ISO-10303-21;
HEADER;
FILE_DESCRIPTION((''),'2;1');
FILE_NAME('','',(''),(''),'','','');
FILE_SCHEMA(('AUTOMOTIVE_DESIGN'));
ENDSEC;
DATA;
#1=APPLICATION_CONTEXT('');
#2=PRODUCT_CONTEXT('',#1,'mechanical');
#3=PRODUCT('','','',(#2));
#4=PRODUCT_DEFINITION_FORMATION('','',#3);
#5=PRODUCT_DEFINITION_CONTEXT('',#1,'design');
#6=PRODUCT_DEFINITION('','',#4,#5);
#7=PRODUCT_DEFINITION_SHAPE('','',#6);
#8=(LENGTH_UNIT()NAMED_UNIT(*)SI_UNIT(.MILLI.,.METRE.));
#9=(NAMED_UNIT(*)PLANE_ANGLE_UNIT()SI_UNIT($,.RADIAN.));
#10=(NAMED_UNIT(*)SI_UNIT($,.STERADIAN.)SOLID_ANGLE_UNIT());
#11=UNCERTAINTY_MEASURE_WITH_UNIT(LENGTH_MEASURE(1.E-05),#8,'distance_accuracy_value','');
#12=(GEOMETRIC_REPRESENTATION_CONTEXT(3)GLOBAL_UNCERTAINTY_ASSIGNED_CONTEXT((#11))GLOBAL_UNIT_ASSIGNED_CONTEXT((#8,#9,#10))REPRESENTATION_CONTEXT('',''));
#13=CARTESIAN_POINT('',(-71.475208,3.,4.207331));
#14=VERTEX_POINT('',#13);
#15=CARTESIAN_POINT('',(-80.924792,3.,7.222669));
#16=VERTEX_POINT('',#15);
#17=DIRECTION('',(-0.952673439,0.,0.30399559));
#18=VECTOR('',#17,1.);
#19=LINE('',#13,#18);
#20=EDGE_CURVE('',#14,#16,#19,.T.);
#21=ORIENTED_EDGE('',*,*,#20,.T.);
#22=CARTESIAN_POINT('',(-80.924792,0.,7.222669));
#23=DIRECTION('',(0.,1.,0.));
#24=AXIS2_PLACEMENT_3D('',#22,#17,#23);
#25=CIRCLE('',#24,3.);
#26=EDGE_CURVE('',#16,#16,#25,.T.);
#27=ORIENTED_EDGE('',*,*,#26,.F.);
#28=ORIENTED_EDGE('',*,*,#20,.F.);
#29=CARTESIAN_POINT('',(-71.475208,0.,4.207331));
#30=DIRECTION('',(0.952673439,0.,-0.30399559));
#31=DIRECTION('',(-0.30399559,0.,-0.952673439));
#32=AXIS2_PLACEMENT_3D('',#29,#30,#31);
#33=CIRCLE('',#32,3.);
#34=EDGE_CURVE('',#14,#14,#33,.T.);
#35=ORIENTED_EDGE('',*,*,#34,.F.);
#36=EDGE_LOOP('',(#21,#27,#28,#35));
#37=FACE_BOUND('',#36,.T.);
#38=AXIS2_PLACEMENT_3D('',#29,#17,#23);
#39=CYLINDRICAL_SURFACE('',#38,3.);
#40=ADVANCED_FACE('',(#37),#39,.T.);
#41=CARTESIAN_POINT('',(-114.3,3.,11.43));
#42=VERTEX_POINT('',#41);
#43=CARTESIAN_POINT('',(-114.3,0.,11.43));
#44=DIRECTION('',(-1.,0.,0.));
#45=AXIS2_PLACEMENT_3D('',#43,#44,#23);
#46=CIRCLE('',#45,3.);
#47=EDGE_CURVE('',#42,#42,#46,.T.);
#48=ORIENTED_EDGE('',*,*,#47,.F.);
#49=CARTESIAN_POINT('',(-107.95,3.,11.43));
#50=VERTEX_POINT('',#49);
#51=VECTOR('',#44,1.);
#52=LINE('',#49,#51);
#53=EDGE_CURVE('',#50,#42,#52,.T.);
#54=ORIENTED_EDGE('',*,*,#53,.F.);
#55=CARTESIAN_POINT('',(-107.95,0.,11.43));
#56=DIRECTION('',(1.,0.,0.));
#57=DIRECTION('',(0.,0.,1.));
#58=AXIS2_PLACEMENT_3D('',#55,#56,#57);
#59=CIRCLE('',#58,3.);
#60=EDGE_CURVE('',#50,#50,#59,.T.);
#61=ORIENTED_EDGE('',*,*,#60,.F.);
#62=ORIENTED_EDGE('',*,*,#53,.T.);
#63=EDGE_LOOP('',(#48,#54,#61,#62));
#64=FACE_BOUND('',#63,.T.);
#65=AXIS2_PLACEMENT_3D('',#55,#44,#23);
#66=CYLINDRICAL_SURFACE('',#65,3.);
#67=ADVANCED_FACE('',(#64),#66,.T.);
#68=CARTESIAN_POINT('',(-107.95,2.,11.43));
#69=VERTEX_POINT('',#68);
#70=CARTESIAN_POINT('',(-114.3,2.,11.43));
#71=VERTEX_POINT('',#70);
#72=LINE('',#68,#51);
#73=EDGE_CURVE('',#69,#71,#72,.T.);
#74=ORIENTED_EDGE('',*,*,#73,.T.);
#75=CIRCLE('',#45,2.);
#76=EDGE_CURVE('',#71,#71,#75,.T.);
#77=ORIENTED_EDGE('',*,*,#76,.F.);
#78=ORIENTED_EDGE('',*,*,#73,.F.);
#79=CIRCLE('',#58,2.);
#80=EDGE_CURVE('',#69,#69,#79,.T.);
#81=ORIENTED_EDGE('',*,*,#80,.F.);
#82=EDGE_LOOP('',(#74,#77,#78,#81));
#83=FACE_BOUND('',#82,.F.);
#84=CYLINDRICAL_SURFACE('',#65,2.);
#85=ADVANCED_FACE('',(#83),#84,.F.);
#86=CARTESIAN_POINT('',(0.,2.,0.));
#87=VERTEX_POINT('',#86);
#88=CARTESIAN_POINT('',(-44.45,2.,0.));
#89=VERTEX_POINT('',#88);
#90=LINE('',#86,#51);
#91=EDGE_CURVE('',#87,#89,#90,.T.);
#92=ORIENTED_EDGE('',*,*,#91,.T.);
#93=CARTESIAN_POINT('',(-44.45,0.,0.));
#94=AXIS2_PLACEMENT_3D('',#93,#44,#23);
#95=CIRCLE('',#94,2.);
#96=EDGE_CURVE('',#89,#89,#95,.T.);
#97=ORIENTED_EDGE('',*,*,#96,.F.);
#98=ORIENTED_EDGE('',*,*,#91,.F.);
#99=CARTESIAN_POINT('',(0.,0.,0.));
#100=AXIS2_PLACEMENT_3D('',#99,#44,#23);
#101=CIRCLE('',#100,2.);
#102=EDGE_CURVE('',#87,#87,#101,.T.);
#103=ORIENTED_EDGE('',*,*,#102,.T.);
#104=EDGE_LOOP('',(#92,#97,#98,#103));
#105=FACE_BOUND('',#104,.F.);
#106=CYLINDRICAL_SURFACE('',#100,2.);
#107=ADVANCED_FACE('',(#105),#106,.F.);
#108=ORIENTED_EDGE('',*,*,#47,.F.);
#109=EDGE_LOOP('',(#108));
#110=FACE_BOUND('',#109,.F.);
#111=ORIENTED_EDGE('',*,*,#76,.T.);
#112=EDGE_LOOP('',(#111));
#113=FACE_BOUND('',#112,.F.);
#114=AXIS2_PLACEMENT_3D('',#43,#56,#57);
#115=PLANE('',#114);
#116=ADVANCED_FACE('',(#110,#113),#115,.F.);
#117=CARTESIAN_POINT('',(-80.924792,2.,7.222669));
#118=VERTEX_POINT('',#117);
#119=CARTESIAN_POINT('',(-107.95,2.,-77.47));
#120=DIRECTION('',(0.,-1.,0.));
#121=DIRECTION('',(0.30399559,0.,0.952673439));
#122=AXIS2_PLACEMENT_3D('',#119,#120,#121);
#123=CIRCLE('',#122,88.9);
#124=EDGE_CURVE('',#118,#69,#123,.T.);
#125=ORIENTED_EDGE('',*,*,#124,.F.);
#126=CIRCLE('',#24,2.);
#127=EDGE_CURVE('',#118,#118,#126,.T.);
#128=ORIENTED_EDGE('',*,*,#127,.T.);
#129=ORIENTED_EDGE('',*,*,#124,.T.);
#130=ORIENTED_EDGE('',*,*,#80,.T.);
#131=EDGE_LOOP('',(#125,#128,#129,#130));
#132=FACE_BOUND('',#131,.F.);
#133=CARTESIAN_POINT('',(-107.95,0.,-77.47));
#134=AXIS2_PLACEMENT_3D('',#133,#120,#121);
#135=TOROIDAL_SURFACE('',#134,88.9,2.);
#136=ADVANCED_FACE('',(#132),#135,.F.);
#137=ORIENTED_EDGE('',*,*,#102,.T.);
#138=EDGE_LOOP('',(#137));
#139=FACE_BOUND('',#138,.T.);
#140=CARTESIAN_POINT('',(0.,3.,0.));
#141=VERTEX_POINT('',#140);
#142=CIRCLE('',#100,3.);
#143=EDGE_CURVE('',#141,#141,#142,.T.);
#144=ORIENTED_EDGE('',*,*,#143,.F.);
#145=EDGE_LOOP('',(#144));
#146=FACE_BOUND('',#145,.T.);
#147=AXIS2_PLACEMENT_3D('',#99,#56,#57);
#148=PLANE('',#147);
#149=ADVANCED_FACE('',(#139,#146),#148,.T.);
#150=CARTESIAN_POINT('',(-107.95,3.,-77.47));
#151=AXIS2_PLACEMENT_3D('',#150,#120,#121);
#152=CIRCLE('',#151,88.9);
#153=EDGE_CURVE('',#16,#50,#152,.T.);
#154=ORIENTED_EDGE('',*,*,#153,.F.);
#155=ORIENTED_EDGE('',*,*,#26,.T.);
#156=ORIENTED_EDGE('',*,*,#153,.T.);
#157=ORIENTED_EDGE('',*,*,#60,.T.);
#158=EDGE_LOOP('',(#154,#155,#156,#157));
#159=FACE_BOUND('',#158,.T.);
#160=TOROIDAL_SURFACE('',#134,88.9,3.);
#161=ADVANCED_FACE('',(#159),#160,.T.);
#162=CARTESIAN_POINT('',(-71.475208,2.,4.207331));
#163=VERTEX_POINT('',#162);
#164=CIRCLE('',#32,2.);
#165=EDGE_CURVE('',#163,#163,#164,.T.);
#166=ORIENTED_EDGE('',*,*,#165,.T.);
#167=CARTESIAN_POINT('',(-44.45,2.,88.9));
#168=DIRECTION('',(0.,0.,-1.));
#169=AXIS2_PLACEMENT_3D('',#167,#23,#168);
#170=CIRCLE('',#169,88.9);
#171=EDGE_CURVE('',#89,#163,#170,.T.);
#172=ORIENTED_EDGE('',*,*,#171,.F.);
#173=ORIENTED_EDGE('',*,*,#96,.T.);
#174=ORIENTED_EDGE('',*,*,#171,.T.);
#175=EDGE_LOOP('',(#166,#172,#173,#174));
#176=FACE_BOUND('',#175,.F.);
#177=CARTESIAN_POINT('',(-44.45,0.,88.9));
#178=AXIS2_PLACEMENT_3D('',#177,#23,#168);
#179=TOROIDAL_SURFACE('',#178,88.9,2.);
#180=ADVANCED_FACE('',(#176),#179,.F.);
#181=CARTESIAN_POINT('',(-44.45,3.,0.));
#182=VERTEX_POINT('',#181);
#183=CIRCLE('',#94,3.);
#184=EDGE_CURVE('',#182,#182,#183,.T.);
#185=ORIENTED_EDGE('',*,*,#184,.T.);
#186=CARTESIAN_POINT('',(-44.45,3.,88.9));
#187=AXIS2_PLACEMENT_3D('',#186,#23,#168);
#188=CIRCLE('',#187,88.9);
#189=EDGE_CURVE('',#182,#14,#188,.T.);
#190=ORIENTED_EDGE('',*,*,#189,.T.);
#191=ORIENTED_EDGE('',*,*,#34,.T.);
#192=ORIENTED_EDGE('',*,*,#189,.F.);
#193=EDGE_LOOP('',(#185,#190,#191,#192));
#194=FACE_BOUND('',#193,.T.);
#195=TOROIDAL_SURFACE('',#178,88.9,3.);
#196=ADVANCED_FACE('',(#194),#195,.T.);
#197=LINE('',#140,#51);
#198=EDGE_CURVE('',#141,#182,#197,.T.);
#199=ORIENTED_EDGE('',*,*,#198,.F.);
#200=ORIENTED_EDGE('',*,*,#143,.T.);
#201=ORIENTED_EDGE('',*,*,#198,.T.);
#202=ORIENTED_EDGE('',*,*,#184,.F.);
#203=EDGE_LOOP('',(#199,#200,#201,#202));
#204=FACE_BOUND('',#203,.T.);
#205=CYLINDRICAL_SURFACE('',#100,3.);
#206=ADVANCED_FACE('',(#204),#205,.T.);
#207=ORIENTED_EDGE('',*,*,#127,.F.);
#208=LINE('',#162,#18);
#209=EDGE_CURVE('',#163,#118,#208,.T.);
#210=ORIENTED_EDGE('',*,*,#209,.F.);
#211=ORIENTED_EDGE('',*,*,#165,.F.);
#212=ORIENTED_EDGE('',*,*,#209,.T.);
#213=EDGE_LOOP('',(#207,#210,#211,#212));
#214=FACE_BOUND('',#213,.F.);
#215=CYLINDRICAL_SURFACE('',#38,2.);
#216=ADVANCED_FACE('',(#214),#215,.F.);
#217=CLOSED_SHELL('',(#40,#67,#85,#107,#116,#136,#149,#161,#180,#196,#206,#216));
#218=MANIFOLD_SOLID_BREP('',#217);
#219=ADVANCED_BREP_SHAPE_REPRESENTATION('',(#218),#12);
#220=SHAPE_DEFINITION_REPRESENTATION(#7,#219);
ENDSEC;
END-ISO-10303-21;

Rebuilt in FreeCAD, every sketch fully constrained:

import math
import FreeCAD as App
import Part
import Sketcher
from FreeCAD import Vector
Q = App.Units.Quantity

doc = App.newDocument("Part")
body = doc.addObject("PartDesign::Body", "Body")

# Sketch on YZ plane
sketch1 = body.newObject("Sketcher::SketchObject", "Sketch")
sketch1.AttachmentSupport = (doc.getObject("YZ_Plane"), [""])
sketch1.MapMode = "FlatFace"
sketch1.addGeometry([
    Part.Circle(Vector(0, 0, 0), Vector(0, 0, 1), 3),
    Part.Circle(Vector(0, 0, 0), Vector(0, 0, 1), 2),
], False)
sketch1.addConstraint([
    Sketcher.Constraint("Coincident", 0, 3, -1, 1),
    Sketcher.Constraint("Coincident", 1, 3, -1, 1),
    Sketcher.Constraint("Diameter", 0, 6.0),
    Sketcher.Constraint("Diameter", 1, 4.0),
])

# Sketch on XZ plane
sketch2 = body.newObject("Sketcher::SketchObject", "Sketch001")
sketch2.AttachmentSupport = (doc.getObject("XZ_Plane"), [""])
sketch2.MapMode = "FlatFace"
sketch2.addGeometry([
    Part.LineSegment(Vector(0, 0, 0), Vector(-44, 0, 0)),  # 0
    Part.ArcOfCircle(Part.Circle(Vector(-44, 89, 0), Vector(0, 0, 1), 89), math.radians(-107.7), math.radians(-90)),  # 1
    Part.LineSegment(Vector(-71, 4, 0), Vector(-81, 7, 0)),  # 2
    Part.ArcOfCircle(Part.Circle(Vector(-108, -77, 0), Vector(0, 0, 1), 89), math.radians(72.3), math.radians(90)),  # 3
    Part.LineSegment(Vector(-108, 11, 0), Vector(-114, 11, 0)),  # 4
], False)
sketch2.addConstraint([
    Sketcher.Constraint("Tangent", 0, 2, 1, 2),
    Sketcher.Constraint("Tangent", 1, 1, 2, 1),
    Sketcher.Constraint("Tangent", 2, 2, 3, 1),
    Sketcher.Constraint("Tangent", 3, 2, 4, 1),
    Sketcher.Constraint("Horizontal", 0),
    Sketcher.Constraint("Horizontal", 4),
    Sketcher.Constraint("Coincident", 0, 1, -1, 1),
    Sketcher.Constraint("Equal", 1, 3),
    Sketcher.Constraint("Radius", 1, Q("3.5 in")),
    Sketcher.Constraint("DistanceX", 0, 2, 0, 1, Q("1.75 in")),
    Sketcher.Constraint("DistanceX", 4, 2, 4, 1, Q("0.25 in")),
    Sketcher.Constraint("DistanceX", 4, 2, -1, 1, Q("4.5 in")),
    Sketcher.Constraint("DistanceY", 3, 3, -1, 1, Q("3.05 in")),
])
doc.recompute()

additivepipe = body.newObject("PartDesign::AdditivePipe", "AdditivePipe")
additivepipe.Profile = sketch1
additivepipe.Spine = (sketch2, ["Edge1", "Edge2", "Edge3", "Edge4", "Edge5"])

doc.recompute()
